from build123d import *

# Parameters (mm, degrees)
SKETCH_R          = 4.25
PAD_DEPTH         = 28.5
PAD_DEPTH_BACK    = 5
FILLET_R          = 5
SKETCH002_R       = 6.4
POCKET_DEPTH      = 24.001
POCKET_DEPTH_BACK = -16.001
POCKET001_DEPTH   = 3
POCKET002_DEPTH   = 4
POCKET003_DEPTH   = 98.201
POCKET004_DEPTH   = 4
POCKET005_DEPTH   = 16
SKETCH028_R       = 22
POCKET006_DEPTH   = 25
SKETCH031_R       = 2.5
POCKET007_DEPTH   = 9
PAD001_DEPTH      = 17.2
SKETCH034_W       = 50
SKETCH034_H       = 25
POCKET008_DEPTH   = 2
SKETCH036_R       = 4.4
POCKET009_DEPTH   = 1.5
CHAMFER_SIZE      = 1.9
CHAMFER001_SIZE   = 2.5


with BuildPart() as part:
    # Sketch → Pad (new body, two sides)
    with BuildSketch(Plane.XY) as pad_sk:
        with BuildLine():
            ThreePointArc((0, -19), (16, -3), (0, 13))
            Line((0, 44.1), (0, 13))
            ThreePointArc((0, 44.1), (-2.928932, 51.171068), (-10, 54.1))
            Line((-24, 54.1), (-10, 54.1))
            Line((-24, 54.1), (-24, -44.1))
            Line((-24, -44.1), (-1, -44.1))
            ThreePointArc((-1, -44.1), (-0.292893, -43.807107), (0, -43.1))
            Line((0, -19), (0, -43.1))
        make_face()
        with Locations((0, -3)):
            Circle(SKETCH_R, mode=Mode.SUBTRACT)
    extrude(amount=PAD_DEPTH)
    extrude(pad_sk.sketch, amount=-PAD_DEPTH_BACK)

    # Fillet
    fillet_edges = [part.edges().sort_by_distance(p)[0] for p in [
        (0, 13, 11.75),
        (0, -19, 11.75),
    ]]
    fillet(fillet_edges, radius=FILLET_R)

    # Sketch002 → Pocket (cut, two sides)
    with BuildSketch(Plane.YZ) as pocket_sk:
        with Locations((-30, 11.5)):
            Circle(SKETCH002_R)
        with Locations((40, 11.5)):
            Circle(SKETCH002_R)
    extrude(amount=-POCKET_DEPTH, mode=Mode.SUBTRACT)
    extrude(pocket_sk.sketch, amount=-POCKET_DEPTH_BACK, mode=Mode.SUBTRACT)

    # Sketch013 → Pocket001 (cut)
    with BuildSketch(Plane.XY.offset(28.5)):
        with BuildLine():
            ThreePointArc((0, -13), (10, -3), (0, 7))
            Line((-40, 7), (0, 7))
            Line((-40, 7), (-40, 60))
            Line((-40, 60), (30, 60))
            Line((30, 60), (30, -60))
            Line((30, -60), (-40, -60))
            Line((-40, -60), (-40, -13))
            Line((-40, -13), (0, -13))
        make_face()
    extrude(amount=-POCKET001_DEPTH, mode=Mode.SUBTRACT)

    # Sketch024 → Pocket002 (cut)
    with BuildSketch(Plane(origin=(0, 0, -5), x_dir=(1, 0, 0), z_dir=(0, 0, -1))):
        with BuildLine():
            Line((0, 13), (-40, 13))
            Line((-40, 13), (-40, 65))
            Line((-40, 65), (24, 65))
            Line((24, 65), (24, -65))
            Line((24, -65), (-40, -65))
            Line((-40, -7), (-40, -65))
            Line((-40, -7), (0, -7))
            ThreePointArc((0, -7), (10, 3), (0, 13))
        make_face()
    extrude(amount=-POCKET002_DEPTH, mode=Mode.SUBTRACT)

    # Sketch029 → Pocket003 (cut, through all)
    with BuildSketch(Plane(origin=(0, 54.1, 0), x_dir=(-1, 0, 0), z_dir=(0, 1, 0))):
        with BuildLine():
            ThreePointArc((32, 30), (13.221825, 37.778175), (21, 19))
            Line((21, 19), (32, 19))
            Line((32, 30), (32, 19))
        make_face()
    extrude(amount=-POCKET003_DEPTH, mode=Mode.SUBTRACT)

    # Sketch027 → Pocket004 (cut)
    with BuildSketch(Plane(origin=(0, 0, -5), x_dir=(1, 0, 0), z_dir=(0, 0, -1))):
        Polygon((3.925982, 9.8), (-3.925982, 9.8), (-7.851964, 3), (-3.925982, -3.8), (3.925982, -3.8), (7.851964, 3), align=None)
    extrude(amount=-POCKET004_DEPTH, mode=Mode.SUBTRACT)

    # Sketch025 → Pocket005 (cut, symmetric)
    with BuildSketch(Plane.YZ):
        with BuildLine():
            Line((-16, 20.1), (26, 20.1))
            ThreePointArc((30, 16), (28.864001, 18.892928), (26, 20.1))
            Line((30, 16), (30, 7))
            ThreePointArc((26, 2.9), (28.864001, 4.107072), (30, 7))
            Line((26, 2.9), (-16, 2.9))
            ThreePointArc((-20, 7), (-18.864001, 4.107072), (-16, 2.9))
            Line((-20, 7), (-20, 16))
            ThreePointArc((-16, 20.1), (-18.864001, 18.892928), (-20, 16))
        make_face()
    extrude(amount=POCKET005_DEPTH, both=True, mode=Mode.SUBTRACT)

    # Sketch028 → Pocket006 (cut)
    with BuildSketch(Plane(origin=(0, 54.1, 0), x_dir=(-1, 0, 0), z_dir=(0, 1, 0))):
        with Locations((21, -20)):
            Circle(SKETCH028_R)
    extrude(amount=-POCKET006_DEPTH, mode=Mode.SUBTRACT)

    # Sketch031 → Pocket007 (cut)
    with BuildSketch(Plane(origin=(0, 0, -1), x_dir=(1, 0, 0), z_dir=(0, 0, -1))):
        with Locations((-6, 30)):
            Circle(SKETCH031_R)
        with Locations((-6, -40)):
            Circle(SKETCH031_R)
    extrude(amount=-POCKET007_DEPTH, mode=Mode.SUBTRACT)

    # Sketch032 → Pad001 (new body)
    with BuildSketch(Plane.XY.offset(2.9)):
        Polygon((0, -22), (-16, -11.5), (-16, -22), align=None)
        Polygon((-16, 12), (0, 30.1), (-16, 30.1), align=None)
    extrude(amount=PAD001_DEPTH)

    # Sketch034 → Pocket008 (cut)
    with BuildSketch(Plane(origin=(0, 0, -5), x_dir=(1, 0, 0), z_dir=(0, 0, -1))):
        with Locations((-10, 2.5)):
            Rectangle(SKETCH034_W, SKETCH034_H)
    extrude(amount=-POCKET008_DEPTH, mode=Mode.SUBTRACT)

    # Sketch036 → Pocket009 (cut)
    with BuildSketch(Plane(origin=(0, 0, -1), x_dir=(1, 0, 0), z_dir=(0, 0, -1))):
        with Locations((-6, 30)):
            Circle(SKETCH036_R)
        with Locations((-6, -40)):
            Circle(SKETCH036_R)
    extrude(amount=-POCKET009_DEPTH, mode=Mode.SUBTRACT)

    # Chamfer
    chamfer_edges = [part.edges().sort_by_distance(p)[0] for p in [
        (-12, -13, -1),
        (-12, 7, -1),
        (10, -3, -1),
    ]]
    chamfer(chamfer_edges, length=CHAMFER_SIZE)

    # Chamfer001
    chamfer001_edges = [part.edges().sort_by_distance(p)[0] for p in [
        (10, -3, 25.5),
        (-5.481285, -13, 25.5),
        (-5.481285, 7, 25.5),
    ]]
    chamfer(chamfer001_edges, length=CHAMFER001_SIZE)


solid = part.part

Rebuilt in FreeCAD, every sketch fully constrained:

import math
import FreeCAD as App
import Part
import Sketcher
Q = App.Units.Quantity


def edges_at(feature, points):
    """Names of the edges that pass closest to the given points."""
    edges = feature.Shape.Edges
    near = lambda p: min(range(len(edges)), key=lambda i: edges[i].distToShape(Part.Vertex(*p))[0])
    return sorted({f"Edge{near(p) + 1}" for p in points})


def add_polygon(sketch, points):
    """Adds a closed chain of lines whose ends are joined by coincident constraints."""
    first, n = sketch.GeometryCount, len(points)
    for a, b in zip(points, points[1:] + points[:1]):
        sketch.addGeometry(Part.LineSegment(App.Vector(*a, 0), App.Vector(*b, 0)), False)
    for i in range(n):
        sketch.addConstraint(Sketcher.Constraint("Coincident", first + i, 2, first + (i + 1) % n, 1))

doc = App.newDocument("Part")
body = doc.addObject("PartDesign::Body", "Body")

sketch1 = doc.addObject("Sketcher::SketchObject", "Sketch")
body.addObject(sketch1)
sketch1.AttachmentSupport = (doc.XY_Plane, [""])
sketch1.MapMode = "FlatFace"
sketch1.addGeometry(Part.ArcOfCircle(Part.Circle(App.Vector(0, -3, 0), App.Vector(0, 0, 1), 16), math.radians(-90), math.radians(90)), False)
sketch1.addGeometry(Part.LineSegment(App.Vector(0, 13, 0), App.Vector(0, 44.1, 0)), False)
sketch1.addGeometry(Part.ArcOfCircle(Part.Circle(App.Vector(-10, 44.1, 0), App.Vector(0, 0, 1), 10), math.radians(0), math.radians(90)), False)
sketch1.addGeometry(Part.LineSegment(App.Vector(-10, 54.1, 0), App.Vector(-24, 54.1, 0)), False)
sketch1.addGeometry(Part.LineSegment(App.Vector(-24, 54.1, 0), App.Vector(-24, -44.1, 0)), False)
sketch1.addGeometry(Part.LineSegment(App.Vector(-24, -44.1, 0), App.Vector(-1, -44.1, 0)), False)
sketch1.addGeometry(Part.ArcOfCircle(Part.Circle(App.Vector(-1, -43.1, 0), App.Vector(0, 0, 1), 1), math.radians(-90), math.radians(0)), False)
sketch1.addGeometry(Part.LineSegment(App.Vector(0, -43.1, 0), App.Vector(0, -19, 0)), False)
sketch1.addGeometry(Part.Circle(App.Vector(0, -3, 0), App.Vector(0, 0, 1), 4.2), False)
sketch1.addConstraint(Sketcher.Constraint("Coincident", 0, 2, 1, 1))
sketch1.addConstraint(Sketcher.Constraint("Tangent", 1, 2, 2, 1))
sketch1.addConstraint(Sketcher.Constraint("Tangent", 2, 2, 3, 1))
sketch1.addConstraint(Sketcher.Constraint("Coincident", 3, 2, 4, 1))
sketch1.addConstraint(Sketcher.Constraint("Coincident", 4, 2, 5, 1))
sketch1.addConstraint(Sketcher.Constraint("Tangent", 5, 2, 6, 1))
sketch1.addConstraint(Sketcher.Constraint("Tangent", 6, 2, 7, 1))
sketch1.addConstraint(Sketcher.Constraint("Coincident", 7, 2, 0, 1))
sketch1.addConstraint(Sketcher.Constraint("Vertical", 1))
sketch1.addConstraint(Sketcher.Constraint("Horizontal", 3))
sketch1.addConstraint(Sketcher.Constraint("Vertical", 4))
sketch1.addConstraint(Sketcher.Constraint("Horizontal", 5))
sketch1.addConstraint(Sketcher.Constraint("Vertical", 7))
sketch1.addConstraint(Sketcher.Constraint("Coincident", 8, 3, 0, 3))
sketch1.addConstraint(Sketcher.Constraint("PointOnObject", 0, 3, -2))
sketch1.addConstraint(Sketcher.Constraint("PointOnObject", 0, 2, -2))
sketch1.addConstraint(Sketcher.Constraint("PointOnObject", 6, 2, -2))
sketch1.addConstraint(Sketcher.Constraint("Radius", 0, 16.0))
sketch1.addConstraint(Sketcher.Constraint("Radius", 2, 9.999999))
sketch1.addConstraint(Sketcher.Constraint("Radius", 6, 0.999999))
sketch1.addConstraint(Sketcher.Constraint("Diameter", 8, 8.5))
sketch1.addConstraint(Sketcher.Constraint("DistanceX", 3, 2, 3, 1, 14.0))
sketch1.addConstraint(Sketcher.Constraint("DistanceY", 1, 1, 1, 2, 31.1))
sketch1.addConstraint(Sketcher.Constraint("DistanceY", 4, 2, 4, 1, 98.2))
sketch1.addConstraint(Sketcher.Constraint("DistanceY", 0, 3, -1, 1, 3.0))
pad1 = doc.addObject("PartDesign::Pad", "Pad")
body.addObject(pad1)
pad1.Profile = sketch1
pad1.Type = "TwoLengths"
pad1.Length = 28.5
pad1.Length2 = 5
doc.recompute()

fillet = doc.addObject("PartDesign::Fillet", "Fillet")
body.addObject(fillet)
fillet.Base = (pad1, edges_at(pad1, [(0, 13, 11.75), (0, -19, 11.75)]))
fillet.Radius = 5

sketch2 = doc.addObject("Sketcher::SketchObject", "Sketch001")
body.addObject(sketch2)
sketch2.AttachmentSupport = (doc.YZ_Plane, [""])
sketch2.MapMode = "FlatFace"
sketch2.addGeometry(Part.Circle(App.Vector(-30, 12, 0), App.Vector(0, 0, 1), 6), False)
sketch2.addGeometry(Part.Circle(App.Vector(40, 12, 0), App.Vector(0, 0, 1), 6), False)
sketch2.addConstraint(Sketcher.Constraint("Equal", 0, 1))
sketch2.addConstraint(Sketcher.Constraint("Horizontal", 0, 3, 1, 3))
sketch2.addConstraint(Sketcher.Constraint("Diameter", 0, 12.8))
sketch2.addConstraint(Sketcher.Constraint("DistanceX", 0, 3, -1, 1, 30.0))
sketch2.addConstraint(Sketcher.Constraint("DistanceX", -1, 1, 1, 3, 40.0))
sketch2.addConstraint(Sketcher.Constraint("DistanceY", -1, 1, 0, 3, 11.5))
pocket1 = doc.addObject("PartDesign::Pocket", "Pocket")
body.addObject(pocket1)
pocket1.Profile = sketch2
pocket1.Type = "ThroughAll"
pocket1.Midplane = True

sketch3 = doc.addObject("Sketcher::SketchObject", "Sketch002")
body.addObject(sketch3)
sketch3.AttachmentSupport = (doc.XY_Plane, [""])
sketch3.MapMode = "FlatFace"
sketch3.AttachmentOffset = App.Placement(App.Vector(0, 0, 28.5), App.Rotation())
sketch3.addGeometry(Part.ArcOfCircle(Part.Circle(App.Vector(0, -3, 0), App.Vector(0, 0, 1), 10), math.radians(-90), math.radians(90)), False)
sketch3.addGeometry(Part.LineSegment(App.Vector(0, -13, 0), App.Vector(-40, -13, 0)), False)
sketch3.addGeometry(Part.LineSegment(App.Vector(-40, -13, 0), App.Vector(-40, -60, 0)), False)
sketch3.addGeometry(Part.LineSegment(App.Vector(-40, -60, 0), App.Vector(30, -60, 0)), False)
sketch3.addGeometry(Part.LineSegment(App.Vector(30, -60, 0), App.Vector(30, 60, 0)), False)
sketch3.addGeometry(Part.LineSegment(App.Vector(30, 60, 0), App.Vector(-40, 60, 0)), False)
sketch3.addGeometry(Part.LineSegment(App.Vector(-40, 60, 0), App.Vector(-40, 7, 0)), False)
sketch3.addGeometry(Part.LineSegment(App.Vector(-40, 7, 0), App.Vector(0, 7, 0)), False)
sketch3.addConstraint(Sketcher.Constraint("Tangent", 0, 1, 1, 1))
sketch3.addConstraint(Sketcher.Constraint("Coincident", 1, 2, 2, 1))
sketch3.addConstraint(Sketcher.Constraint("Coincident", 2, 2, 3, 1))
sketch3.addConstraint(Sketcher.Constraint("Coincident", 3, 2, 4, 1))
sketch3.addConstraint(Sketcher.Constraint("Coincident", 4, 2, 5, 1))
sketch3.addConstraint(Sketcher.Constraint("Coincident", 5, 2, 6, 1))
sketch3.addConstraint(Sketcher.Constraint("Coincident", 6, 2, 7, 1))
sketch3.addConstraint(Sketcher.Constraint("Tangent", 7, 2, 0, 2))
sketch3.addConstraint(Sketcher.Constraint("Horizontal", 1))
sketch3.addConstraint(Sketcher.Constraint("Vertical", 2))
sketch3.addConstraint(Sketcher.Constraint("Horizontal", 3))
sketch3.addConstraint(Sketcher.Constraint("Vertical", 4))
sketch3.addConstraint(Sketcher.Constraint("Horizontal", 5))
sketch3.addConstraint(Sketcher.Constraint("Vertical", 6))
sketch3.addConstraint(Sketcher.Constraint("Horizontal", 7))
sketch3.addConstraint(Sketcher.Constraint("Symmetric", 2, 2, 5, 2, -1))
sketch3.addConstraint(Sketcher.Constraint("PointOnObject", 0, 3, -2))
sketch3.addConstraint(Sketcher.Constraint("Radius", 0, 10.0))
sketch3.addConstraint(Sketcher.Constraint("DistanceX", 1, 2, 1, 1, 40.0))
sketch3.addConstraint(Sketcher.Constraint("DistanceX", 3, 1, 3, 2, 70.0))
sketch3.addConstraint(Sketcher.Constraint("DistanceY", 2, 2, 2, 1, 47.0))
sketch3.addConstraint(Sketcher.Constraint("DistanceY", 4, 1, 4, 2, 120.0))
pocket2 = doc.addObject("PartDesign::Pocket", "Pocket001")
body.addObject(pocket2)
pocket2.Profile = sketch3
pocket2.Length = 3

sketch4 = doc.addObject("Sketcher::SketchObject", "Sketch003")
body.addObject(sketch4)
sketch4.AttachmentSupport = (doc.XY_Plane, [""])
sketch4.MapMode = "FlatFace"
sketch4.AttachmentOffset = App.Placement(App.Vector(0, 0, -5), App.Rotation())
sketch4.addGeometry(Part.LineSegment(App.Vector(-40, -13, 0), App.Vector(0, -13, 0)), False)
sketch4.addGeometry(Part.ArcOfCircle(Part.Circle(App.Vector(0, -3, 0), App.Vector(0, 0, 1), 10), math.radians(-90), math.radians(90)), False)
sketch4.addGeometry(Part.LineSegment(App.Vector(0, 7, 0), App.Vector(-40, 7, 0)), False)
sketch4.addGeometry(Part.LineSegment(App.Vector(-40, 7, 0), App.Vector(-40, 65, 0)), False)
sketch4.addGeometry(Part.LineSegment(App.Vector(-40, 65, 0), App.Vector(24, 65, 0)), False)
sketch4.addGeometry(Part.LineSegment(App.Vector(24, 65, 0), App.Vector(24, -65, 0)), False)
sketch4.addGeometry(Part.LineSegment(App.Vector(24, -65, 0), App.Vector(-40, -65, 0)), False)
sketch4.addGeometry(Part.LineSegment(App.Vector(-40, -65, 0), App.Vector(-40, -13, 0)), False)
sketch4.addConstraint(Sketcher.Constraint("Tangent", 0, 2, 1, 1))
sketch4.addConstraint(Sketcher.Constraint("Tangent", 1, 2, 2, 1))
sketch4.addConstraint(Sketcher.Constraint("Coincident", 2, 2, 3, 1))
sketch4.addConstraint(Sketcher.Constraint("Coincident", 3, 2, 4, 1))
sketch4.addConstraint(Sketcher.Constraint("Coincident", 4, 2, 5, 1))
sketch4.addConstraint(Sketcher.Constraint("Coincident", 5, 2, 6, 1))
sketch4.addConstraint(Sketcher.Constraint("Coincident", 6, 2, 7, 1))
sketch4.addConstraint(Sketcher.Constraint("Coincident", 7, 2, 0, 1))
sketch4.addConstraint(Sketcher.Constraint("Horizontal", 0))
sketch4.addConstraint(Sketcher.Constraint("Horizontal", 2))
sketch4.addConstraint(Sketcher.Constraint("Vertical", 3))
sketch4.addConstraint(Sketcher.Constraint("Horizontal", 4))
sketch4.addConstraint(Sketcher.Constraint("Vertical", 5))
sketch4.addConstraint(Sketcher.Constraint("Horizontal", 6))
sketch4.addConstraint(Sketcher.Constraint("Vertical", 7))
sketch4.addConstraint(Sketcher.Constraint("Symmetric", 3, 2, 6, 2, -1))
sketch4.addConstraint(Sketcher.Constraint("PointOnObject", 1, 3, -2))
sketch4.addConstraint(Sketcher.Constraint("Radius", 1, 10.0))
sketch4.addConstraint(Sketcher.Constraint("DistanceX", 0, 1, 0, 2, 40.0))
sketch4.addConstraint(Sketcher.Constraint("DistanceX", 4, 1, 4, 2, 64.0))
sketch4.addConstraint(Sketcher.Constraint("DistanceY", 3, 1, 3, 2, 58.0))
sketch4.addConstraint(Sketcher.Constraint("DistanceY", 5, 2, 5, 1, 130.0))
pocket3 = doc.addObject("PartDesign::Pocket", "Pocket002")
body.addObject(pocket3)
pocket3.Profile = sketch4
pocket3.Length = 4
pocket3.Reversed = True

sketch5 = doc.addObject("Sketcher::SketchObject", "Sketch004")
body.addObject(sketch5)
sketch5.AttachmentSupport = (doc.XZ_Plane, [""])
sketch5.MapMode = "FlatFace"
sketch5.AttachmentOffset = App.Placement(App.Vector(0, 0, -54.1), App.Rotation())
sketch5.addGeometry(Part.ArcOfCircle(Part.Circle(App.Vector(-21, 30, 0), App.Vector(0, 0, 1), 11), math.radians(-90), math.radians(180)), False)
sketch5.addGeometry(Part.LineSegment(App.Vector(-21, 19, 0), App.Vector(-32, 19, 0)), False)
sketch5.addGeometry(Part.LineSegment(App.Vector(-32, 19, 0), App.Vector(-32, 30, 0)), False)
sketch5.addConstraint(Sketcher.Constraint("Tangent", 0, 1, 1, 1))
sketch5.addConstraint(Sketcher.Constraint("Coincident", 1, 2, 2, 1))
sketch5.addConstraint(Sketcher.Constraint("Tangent", 2, 2, 0, 2))
sketch5.addConstraint(Sketcher.Constraint("Horizontal", 1))
sketch5.addConstraint(Sketcher.Constraint("Vertical", 2))
sketch5.addConstraint(Sketcher.Constraint("Radius", 0, 11.0))
sketch5.addConstraint(Sketcher.Constraint("DistanceX", 0, 3, -1, 1, 21.0))
sketch5.addConstraint(Sketcher.Constraint("DistanceY", -1, 1, 0, 3, 30.0))
pocket4 = doc.addObject("PartDesign::Pocket", "Pocket003")
body.addObject(pocket4)
pocket4.Profile = sketch5
pocket4.Type = "ThroughAll"
pocket4.Reversed = True

sketch6 = doc.addObject("Sketcher::SketchObject", "Sketch005")
body.addObject(sketch6)
sketch6.AttachmentSupport = (doc.XY_Plane, [""])
sketch6.MapMode = "FlatFace"
sketch6.AttachmentOffset = App.Placement(App.Vector(0, 0, -5), App.Rotation())
add_polygon(sketch6, [(4, -10), (-4, -10), (-8, -3), (-4, 4), (4, 4), (8, -3)])
sketch6.addConstraint(Sketcher.Constraint("Horizontal", 0))
sketch6.addConstraint(Sketcher.Constraint("Horizontal", 3))
sketch6.addConstraint(Sketcher.Constraint("Symmetric", 1, 2, 4, 2, -2))
sketch6.addConstraint(Sketcher.Constraint("Parallel", 1, 4))
sketch6.addConstraint(Sketcher.Constraint("Parallel", 2, 5))
sketch6.addConstraint(Sketcher.Constraint("Vertical", 0, 2, 2, 2))
sketch6.addConstraint(Sketcher.Constraint("Vertical", 3, 2, 5, 2))
sketch6.addConstraint(Sketcher.Constraint("Angle", 1, Q("120.000001 deg")))
sketch6.addConstraint(Sketcher.Constraint("DistanceY", 1, 2, -1, 1, 3.0))
sketch6.addConstraint(Sketcher.Constraint("DistanceY", 0, 2, -1, 1, 9.8))
sketch6.addConstraint(Sketcher.Constraint("DistanceX", 0, 2, 0, 1, 7.851964))
pocket5 = doc.addObject("PartDesign::Pocket", "Pocket004")
body.addObject(pocket5)
pocket5.Profile = sketch6
pocket5.Length = 4
pocket5.Reversed = True

sketch7 = doc.addObject("Sketcher::SketchObject", "Sketch006")
body.addObject(sketch7)
sketch7.AttachmentSupport = (doc.YZ_Plane, [""])
sketch7.MapMode = "FlatFace"
sketch7.addGeometry(Part.LineSegment(App.Vector(26, 20.1, 0), App.Vector(-16, 20.1, 0)), False)
sketch7.addGeometry(Part.ArcOfCircle(Part.Circle(App.Vector(-16, 16.1, 0), App.Vector(0, 0, 1), 4), math.radians(90), math.radians(181)), False)
sketch7.addGeometry(Part.LineSegment(App.Vector(-20, 16, 0), App.Vector(-20, 7, 0)), False)
sketch7.addGeometry(Part.ArcOfCircle(Part.Circle(App.Vector(-16, 6.9, 0), App.Vector(0, 0, 1), 4), math.radians(179), math.radians(270)), False)
sketch7.addGeometry(Part.LineSegment(App.Vector(-16, 2.9, 0), App.Vector(26, 2.9, 0)), False)
sketch7.addGeometry(Part.ArcOfCircle(Part.Circle(App.Vector(26, 6.9, 0), App.Vector(0, 0, 1), 4), math.radians(-90), math.radians(1)), False)
sketch7.addGeometry(Part.LineSegment(App.Vector(30, 7, 0), App.Vector(30, 16, 0)), False)
sketch7.addGeometry(Part.ArcOfCircle(Part.Circle(App.Vector(26, 16.1, 0), App.Vector(0, 0, 1), 4), math.radians(-1), math.radians(90)), False)
sketch7.addConstraint(Sketcher.Constraint("Tangent", 0, 2, 1, 1))
sketch7.addConstraint(Sketcher.Constraint("Coincident", 1, 2, 2, 1))
sketch7.addConstraint(Sketcher.Constraint("Coincident", 2, 2, 3, 1))
sketch7.addConstraint(Sketcher.Constraint("Tangent", 3, 2, 4, 1))
sketch7.addConstraint(Sketcher.Constraint("Tangent", 4, 2, 5, 1))
sketch7.addConstraint(Sketcher.Constraint("Coincident", 5, 2, 6, 1))
sketch7.addConstraint(Sketcher.Constraint("Coincident", 6, 2, 7, 1))
sketch7.addConstraint(Sketcher.Constraint("Tangent", 7, 2, 0, 1))
sketch7.addConstraint(Sketcher.Constraint("Horizontal", 0))
sketch7.addConstraint(Sketcher.Constraint("Vertical", 2))
sketch7.addConstraint(Sketcher.Constraint("Horizontal", 4))
sketch7.addConstraint(Sketcher.Constraint("Vertical", 6))
sketch7.addConstraint(Sketcher.Constraint("Equal", 1, 3))
sketch7.addConstraint(Sketcher.Constraint("Equal", 3, 5))
sketch7.addConstraint(Sketcher.Constraint("Equal", 5, 7))
sketch7.addConstraint(Sketcher.Constraint("Horizontal", 2, 2, 5, 2))
sketch7.addConstraint(Sketcher.Constraint("Horizontal", 1, 2, 6, 2))
sketch7.addConstraint(Sketcher.Constraint("Vertical", 1, 3, 3, 3))
sketch7.addConstraint(Sketcher.Constraint("DistanceX", 0, 2, 0, 1, 42.0))
sketch7.addConstraint(Sketcher.Constraint("DistanceY", 2, 2, 2, 1, 9.0))
sketch7.addConstraint(Sketcher.Constraint("DistanceX", 1, 3, -1, 1, 16.000001))
sketch7.addConstraint(Sketcher.Constraint("DistanceX", 1, 2, -1, 1, 20.0))
sketch7.addConstraint(Sketcher.Constraint("DistanceY", -1, 1, 1, 2, 16.0))
sketch7.addConstraint(Sketcher.Constraint("DistanceY", -1, 1, 0, 2, 20.1))
pocket6 = doc.addObject("PartDesign::Pocket", "Pocket005")
body.addObject(pocket6)
pocket6.Profile = sketch7
pocket6.Length = 32
pocket6.Midplane = True

sketch8 = doc.addObject("Sketcher::SketchObject", "Sketch007")
body.addObject(sketch8)
sketch8.AttachmentSupport = (doc.XZ_Plane, [""])
sketch8.MapMode = "FlatFace"
sketch8.AttachmentOffset = App.Placement(App.Vector(0, 0, -54.1), App.Rotation())
sketch8.addGeometry(Part.Circle(App.Vector(-21, -20, 0), App.Vector(0, 0, 1), 22), False)
sketch8.addConstraint(Sketcher.Constraint("Diameter", 0, 44.0))
sketch8.addConstraint(Sketcher.Constraint("DistanceX", 0, 3, -1, 1, 21.0))
sketch8.addConstraint(Sketcher.Constraint("DistanceY", 0, 3, -1, 1, 20.0))
pocket7 = doc.addObject("PartDesign::Pocket", "Pocket006")
body.addObject(pocket7)
pocket7.Profile = sketch8
pocket7.Length = 25
pocket7.Reversed = True

sketch9 = doc.addObject("Sketcher::SketchObject", "Sketch008")
body.addObject(sketch9)
sketch9.AttachmentSupport = (doc.XY_Plane, [""])
sketch9.MapMode = "FlatFace"
sketch9.AttachmentOffset = App.Placement(App.Vector(0, 0, -1), App.Rotation())
sketch9.addGeometry(Part.Circle(App.Vector(-6, -30, 0), App.Vector(0, 0, 1), 2.5), False)
sketch9.addGeometry(Part.Circle(App.Vector(-6, 40, 0), App.Vector(0, 0, 1), 2.5), False)
sketch9.addConstraint(Sketcher.Constraint("Equal", 0, 1))
sketch9.addConstraint(Sketcher.Constraint("Vertical", 0, 3, 1, 3))
sketch9.addConstraint(Sketcher.Constraint("Diameter", 0, 5.0))
sketch9.addConstraint(Sketcher.Constraint("DistanceX", 0, 3, -1, 1, 6.0))
sketch9.addConstraint(Sketcher.Constraint("DistanceY", 0, 3, -1, 1, 30.0))
sketch9.addConstraint(Sketcher.Constraint("DistanceY", -1, 1, 1, 3, 40.0))
pocket8 = doc.addObject("PartDesign::Pocket", "Pocket007")
body.addObject(pocket8)
pocket8.Profile = sketch9
pocket8.Length = 9
pocket8.Reversed = True

sketch10 = doc.addObject("Sketcher::SketchObject", "Sketch009")
body.addObject(sketch10)
sketch10.AttachmentSupport = (doc.XY_Plane, [""])
sketch10.MapMode = "FlatFace"
sketch10.AttachmentOffset = App.Placement(App.Vector(0, 0, 2.9), App.Rotation())
add_polygon(sketch10, [(0, -22), (-16, -12), (-16, -22)])
add_polygon(sketch10, [(-16, 12), (0, 30), (-16, 30)])
sketch10.addConstraint(Sketcher.Constraint("Vertical", 1))
sketch10.addConstraint(Sketcher.Constraint("Horizontal", 2))
sketch10.addConstraint(Sketcher.Constraint("Horizontal", 4))
sketch10.addConstraint(Sketcher.Constraint("Vertical", 5))
sketch10.addConstraint(Sketcher.Constraint("PointOnObject", 2, 2, -2))
sketch10.addConstraint(Sketcher.Constraint("PointOnObject", 3, 2, -2))
sketch10.addConstraint(Sketcher.Constraint("Vertical", 1, 2, 4, 2))
sketch10.addConstraint(Sketcher.Constraint("DistanceX", 2, 1, 2, 2, 16.0))
sketch10.addConstraint(Sketcher.Constraint("DistanceY", 1, 2, 1, 1, 10.5))
sketch10.addConstraint(Sketcher.Constraint("DistanceY", 5, 2, 5, 1, 18.1))
sketch10.addConstraint(Sketcher.Constraint("DistanceY", 1, 2, -1, 1, 22.0))
sketch10.addConstraint(Sketcher.Constraint("DistanceY", -1, 1, 5, 2, 12.0))
pad2 = doc.addObject("PartDesign::Pad", "Pad001")
body.addObject(pad2)
pad2.Profile = sketch10
pad2.Length = 17.2

sketch11 = doc.addObject("Sketcher::SketchObject", "Sketch010")
body.addObject(sketch11)
sketch11.AttachmentSupport = (doc.XY_Plane, [""])
sketch11.MapMode = "FlatFace"
sketch11.AttachmentOffset = App.Placement(App.Vector(0, 0, -5), App.Rotation())
add_polygon(sketch11, [(-35, -15), (-35, 10), (15, 10), (15, -15)])
sketch11.addConstraint(Sketcher.Constraint("Vertical", 0))
sketch11.addConstraint(Sketcher.Constraint("Horizontal", 1))
sketch11.addConstraint(Sketcher.Constraint("Vertical", 2))
sketch11.addConstraint(Sketcher.Constraint("Horizontal", 3))
sketch11.addConstraint(Sketcher.Constraint("DistanceX", 1, 1, 1, 2, 50.0))
sketch11.addConstraint(Sketcher.Constraint("DistanceY", 0, 1, 0, 2, 25.0))
sketch11.addConstraint(Sketcher.Constraint("DistanceX", 0, 2, -1, 1, 35.0))
sketch11.addConstraint(Sketcher.Constraint("DistanceY", -1, 1, 0, 2, 10.0))
pocket9 = doc.addObject("PartDesign::Pocket", "Pocket008")
body.addObject(pocket9)
pocket9.Profile = sketch11
pocket9.Length = 2
pocket9.Reversed = True

sketch12 = doc.addObject("Sketcher::SketchObject", "Sketch011")
body.addObject(sketch12)
sketch12.AttachmentSupport = (doc.XY_Plane, [""])
sketch12.MapMode = "FlatFace"
sketch12.AttachmentOffset = App.Placement(App.Vector(0, 0, -1), App.Rotation())
sketch12.addGeometry(Part.Circle(App.Vector(-6, -30, 0), App.Vector(0, 0, 1), 4.4), False)
sketch12.addGeometry(Part.Circle(App.Vector(-6, 40, 0), App.Vector(0, 0, 1), 4.4), False)
sketch12.addConstraint(Sketcher.Constraint("Equal", 0, 1))
sketch12.addConstraint(Sketcher.Constraint("Vertical", 0, 3, 1, 3))
sketch12.addConstraint(Sketcher.Constraint("Diameter", 0, 8.8))
sketch12.addConstraint(Sketcher.Constraint("DistanceX", 0, 3, -1, 1, 6.0))
sketch12.addConstraint(Sketcher.Constraint("DistanceY", 0, 3, -1, 1, 30.0))
sketch12.addConstraint(Sketcher.Constraint("DistanceY", -1, 1, 1, 3, 40.0))
pocket10 = doc.addObject("PartDesign::Pocket", "Pocket009")
body.addObject(pocket10)
pocket10.Profile = sketch12
pocket10.Length = 1.5
pocket10.Reversed = True
doc.recompute()

chamfer = doc.addObject("PartDesign::Chamfer", "Chamfer")
body.addObject(chamfer)
chamfer.Base = (pocket10, edges_at(pocket10, [(-12, -13, -1), (-12, 7, -1), (10, -3, -1)]))
chamfer.Size = 1.9
doc.recompute()

chamfer2 = doc.addObject("PartDesign::Chamfer", "Chamfer001")
body.addObject(chamfer2)
chamfer2.Base = (chamfer, edges_at(chamfer, [(10, -3, 25.5), (-5.481, -13, 25.5), (-5.481, 7, 25.5)]))
chamfer2.Size = 2.5

doc.recompute()
